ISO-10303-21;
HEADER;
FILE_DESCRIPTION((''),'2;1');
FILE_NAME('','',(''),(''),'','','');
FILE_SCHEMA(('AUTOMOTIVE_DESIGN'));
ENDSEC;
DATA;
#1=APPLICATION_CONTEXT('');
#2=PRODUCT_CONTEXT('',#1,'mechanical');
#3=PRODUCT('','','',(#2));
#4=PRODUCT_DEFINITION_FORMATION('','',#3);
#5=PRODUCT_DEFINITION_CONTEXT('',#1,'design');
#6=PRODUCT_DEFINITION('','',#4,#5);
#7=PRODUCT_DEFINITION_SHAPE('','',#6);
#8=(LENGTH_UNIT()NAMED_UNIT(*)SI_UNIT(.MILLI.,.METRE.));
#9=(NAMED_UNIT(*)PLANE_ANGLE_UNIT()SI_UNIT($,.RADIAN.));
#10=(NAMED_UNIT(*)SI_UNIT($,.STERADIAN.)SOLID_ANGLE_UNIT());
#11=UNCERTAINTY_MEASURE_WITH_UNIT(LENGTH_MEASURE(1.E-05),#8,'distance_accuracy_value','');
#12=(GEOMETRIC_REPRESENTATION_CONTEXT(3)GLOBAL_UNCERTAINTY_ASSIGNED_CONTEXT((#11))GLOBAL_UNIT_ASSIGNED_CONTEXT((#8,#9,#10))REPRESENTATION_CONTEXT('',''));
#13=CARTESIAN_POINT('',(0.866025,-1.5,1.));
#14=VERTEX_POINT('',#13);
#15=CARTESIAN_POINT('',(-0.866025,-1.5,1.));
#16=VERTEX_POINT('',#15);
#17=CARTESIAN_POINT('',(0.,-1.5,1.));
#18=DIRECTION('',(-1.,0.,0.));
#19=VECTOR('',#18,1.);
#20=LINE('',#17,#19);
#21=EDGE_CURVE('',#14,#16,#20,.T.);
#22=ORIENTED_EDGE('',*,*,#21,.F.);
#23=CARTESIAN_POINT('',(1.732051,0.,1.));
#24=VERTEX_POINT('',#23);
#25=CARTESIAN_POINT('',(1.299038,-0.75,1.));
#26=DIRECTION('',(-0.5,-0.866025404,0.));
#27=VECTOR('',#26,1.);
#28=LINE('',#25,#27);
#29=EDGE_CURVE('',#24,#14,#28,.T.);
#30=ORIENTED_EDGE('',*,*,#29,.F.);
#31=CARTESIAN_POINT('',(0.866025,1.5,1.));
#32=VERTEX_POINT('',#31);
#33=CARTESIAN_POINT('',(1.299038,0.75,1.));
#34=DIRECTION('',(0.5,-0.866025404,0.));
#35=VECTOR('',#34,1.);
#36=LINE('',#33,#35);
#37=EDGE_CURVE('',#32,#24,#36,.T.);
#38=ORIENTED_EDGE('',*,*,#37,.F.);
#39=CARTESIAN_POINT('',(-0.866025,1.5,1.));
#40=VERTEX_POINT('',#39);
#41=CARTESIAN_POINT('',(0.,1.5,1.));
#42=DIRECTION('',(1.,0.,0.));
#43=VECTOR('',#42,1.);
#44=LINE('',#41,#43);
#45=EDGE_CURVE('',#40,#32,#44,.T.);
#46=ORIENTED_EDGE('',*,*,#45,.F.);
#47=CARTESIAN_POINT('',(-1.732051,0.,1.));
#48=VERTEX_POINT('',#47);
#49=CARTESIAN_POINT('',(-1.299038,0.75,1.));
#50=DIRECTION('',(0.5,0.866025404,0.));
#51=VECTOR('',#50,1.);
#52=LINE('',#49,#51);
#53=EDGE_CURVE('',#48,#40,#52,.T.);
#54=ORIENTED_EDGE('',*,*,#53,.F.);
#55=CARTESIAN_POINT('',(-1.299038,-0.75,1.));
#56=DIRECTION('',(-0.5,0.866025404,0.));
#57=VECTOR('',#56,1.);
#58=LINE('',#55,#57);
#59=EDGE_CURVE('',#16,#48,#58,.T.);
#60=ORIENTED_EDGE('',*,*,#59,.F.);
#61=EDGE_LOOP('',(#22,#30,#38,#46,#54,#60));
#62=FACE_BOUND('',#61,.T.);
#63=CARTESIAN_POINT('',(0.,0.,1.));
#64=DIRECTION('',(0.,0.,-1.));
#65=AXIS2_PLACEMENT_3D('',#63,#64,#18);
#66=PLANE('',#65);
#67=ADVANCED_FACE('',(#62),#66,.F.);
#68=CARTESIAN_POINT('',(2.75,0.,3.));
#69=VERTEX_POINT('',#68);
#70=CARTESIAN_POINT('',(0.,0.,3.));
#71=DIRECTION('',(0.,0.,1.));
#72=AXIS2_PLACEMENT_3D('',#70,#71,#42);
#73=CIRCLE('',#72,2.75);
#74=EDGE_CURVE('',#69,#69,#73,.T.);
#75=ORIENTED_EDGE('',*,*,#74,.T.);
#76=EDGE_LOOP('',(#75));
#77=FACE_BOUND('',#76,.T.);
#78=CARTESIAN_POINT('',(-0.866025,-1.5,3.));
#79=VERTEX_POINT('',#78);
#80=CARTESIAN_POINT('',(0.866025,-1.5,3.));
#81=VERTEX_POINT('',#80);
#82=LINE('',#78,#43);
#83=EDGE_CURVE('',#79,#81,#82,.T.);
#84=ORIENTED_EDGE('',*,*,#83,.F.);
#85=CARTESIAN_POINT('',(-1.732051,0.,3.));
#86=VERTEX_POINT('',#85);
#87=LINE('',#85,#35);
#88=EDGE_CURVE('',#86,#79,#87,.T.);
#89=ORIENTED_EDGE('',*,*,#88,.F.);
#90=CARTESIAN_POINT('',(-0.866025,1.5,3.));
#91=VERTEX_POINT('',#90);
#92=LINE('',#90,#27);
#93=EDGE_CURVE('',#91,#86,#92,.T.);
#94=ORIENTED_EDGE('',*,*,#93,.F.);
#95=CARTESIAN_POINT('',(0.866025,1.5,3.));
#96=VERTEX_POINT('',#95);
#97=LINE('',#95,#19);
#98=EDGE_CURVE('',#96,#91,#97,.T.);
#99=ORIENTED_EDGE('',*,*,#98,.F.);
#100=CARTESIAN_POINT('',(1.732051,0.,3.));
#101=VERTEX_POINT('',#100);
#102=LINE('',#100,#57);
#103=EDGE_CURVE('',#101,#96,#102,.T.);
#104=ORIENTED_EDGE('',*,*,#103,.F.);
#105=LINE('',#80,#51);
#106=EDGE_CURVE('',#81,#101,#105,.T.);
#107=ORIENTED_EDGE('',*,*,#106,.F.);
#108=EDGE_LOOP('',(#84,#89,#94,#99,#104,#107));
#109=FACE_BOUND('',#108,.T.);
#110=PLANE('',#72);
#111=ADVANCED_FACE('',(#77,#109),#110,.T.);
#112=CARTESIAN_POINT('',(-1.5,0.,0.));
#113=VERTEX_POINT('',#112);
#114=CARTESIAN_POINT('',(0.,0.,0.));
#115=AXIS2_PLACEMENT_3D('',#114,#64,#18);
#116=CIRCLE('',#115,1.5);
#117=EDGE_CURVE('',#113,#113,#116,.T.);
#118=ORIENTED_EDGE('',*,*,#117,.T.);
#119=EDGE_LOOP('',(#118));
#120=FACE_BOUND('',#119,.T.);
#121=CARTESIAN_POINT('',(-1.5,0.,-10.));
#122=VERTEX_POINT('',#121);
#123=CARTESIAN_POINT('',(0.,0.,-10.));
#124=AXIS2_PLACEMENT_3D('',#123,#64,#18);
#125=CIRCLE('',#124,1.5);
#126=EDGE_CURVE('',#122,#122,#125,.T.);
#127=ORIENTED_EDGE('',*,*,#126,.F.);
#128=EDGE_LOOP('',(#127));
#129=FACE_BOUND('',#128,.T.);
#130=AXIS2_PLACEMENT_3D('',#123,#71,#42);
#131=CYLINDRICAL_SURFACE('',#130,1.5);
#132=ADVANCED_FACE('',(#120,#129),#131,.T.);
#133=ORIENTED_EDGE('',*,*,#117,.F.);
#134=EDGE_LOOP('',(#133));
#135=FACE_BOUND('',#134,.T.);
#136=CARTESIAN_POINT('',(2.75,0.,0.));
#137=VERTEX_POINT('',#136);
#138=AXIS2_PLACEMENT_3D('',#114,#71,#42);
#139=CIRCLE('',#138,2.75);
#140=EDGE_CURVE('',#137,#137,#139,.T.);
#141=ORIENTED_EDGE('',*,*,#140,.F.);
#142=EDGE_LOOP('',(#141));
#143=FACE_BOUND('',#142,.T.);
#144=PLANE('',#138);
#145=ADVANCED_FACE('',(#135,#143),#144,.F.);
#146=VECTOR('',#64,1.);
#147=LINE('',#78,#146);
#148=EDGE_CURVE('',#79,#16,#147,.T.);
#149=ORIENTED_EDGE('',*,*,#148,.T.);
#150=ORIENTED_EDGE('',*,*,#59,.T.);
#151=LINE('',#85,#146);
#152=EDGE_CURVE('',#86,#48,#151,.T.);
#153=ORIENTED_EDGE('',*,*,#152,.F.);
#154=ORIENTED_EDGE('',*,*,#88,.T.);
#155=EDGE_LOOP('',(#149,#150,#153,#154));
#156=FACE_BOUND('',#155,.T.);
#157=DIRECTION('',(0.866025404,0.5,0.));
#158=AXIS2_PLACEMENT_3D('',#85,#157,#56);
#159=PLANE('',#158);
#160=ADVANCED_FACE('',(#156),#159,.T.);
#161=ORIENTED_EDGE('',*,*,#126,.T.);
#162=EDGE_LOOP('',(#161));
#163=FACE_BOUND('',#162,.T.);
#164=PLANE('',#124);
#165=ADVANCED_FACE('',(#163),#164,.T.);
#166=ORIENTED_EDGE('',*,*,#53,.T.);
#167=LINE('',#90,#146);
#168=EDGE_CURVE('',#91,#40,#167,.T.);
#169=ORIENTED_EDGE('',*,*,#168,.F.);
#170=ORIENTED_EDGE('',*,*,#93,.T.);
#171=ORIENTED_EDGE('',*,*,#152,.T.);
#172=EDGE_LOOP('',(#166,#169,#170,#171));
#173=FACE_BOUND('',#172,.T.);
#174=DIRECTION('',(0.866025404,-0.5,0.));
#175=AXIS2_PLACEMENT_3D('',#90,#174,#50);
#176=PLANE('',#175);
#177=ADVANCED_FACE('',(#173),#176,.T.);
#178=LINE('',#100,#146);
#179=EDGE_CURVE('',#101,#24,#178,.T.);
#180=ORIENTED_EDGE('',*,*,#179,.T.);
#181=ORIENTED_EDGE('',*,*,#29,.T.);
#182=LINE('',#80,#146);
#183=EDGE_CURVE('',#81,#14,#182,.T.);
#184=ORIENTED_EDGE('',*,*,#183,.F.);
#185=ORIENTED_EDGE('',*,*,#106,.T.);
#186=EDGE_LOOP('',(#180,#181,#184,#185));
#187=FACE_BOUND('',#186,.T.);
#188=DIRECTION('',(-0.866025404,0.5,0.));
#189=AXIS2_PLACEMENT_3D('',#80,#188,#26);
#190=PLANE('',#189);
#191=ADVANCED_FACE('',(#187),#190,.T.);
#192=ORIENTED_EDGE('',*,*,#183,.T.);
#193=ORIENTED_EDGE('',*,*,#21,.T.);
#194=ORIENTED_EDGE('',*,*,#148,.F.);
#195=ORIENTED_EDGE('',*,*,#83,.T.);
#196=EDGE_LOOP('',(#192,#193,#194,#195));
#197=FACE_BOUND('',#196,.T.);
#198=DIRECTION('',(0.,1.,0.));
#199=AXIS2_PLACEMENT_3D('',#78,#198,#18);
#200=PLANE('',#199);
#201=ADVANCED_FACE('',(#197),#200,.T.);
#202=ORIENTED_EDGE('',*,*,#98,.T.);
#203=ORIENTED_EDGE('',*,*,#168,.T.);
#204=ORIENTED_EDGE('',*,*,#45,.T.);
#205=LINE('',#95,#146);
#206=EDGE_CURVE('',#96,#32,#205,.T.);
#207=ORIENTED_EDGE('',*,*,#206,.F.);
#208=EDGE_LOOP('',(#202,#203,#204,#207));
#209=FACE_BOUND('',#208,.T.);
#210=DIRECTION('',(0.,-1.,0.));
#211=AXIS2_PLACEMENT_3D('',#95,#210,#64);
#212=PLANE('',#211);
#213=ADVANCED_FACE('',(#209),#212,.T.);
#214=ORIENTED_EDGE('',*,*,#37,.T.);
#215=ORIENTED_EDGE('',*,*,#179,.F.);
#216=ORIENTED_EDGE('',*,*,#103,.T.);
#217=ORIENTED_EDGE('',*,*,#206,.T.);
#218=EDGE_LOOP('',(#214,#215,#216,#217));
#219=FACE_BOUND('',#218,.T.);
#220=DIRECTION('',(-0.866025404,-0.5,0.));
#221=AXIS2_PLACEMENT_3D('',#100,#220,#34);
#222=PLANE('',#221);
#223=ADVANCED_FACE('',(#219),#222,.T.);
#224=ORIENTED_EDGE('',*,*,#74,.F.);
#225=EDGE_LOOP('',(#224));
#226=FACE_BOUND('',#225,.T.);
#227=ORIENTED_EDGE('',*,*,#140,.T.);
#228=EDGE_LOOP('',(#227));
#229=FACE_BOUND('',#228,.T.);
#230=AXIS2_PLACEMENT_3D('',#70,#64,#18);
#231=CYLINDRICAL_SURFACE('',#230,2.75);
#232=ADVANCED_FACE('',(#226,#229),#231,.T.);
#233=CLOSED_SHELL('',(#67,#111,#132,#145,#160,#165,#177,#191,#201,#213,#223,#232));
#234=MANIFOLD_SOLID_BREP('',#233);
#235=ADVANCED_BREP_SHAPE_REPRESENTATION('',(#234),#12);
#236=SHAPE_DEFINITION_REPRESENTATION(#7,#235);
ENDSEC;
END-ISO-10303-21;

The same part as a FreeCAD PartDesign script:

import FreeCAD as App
import Part
import Sketcher
from FreeCAD import Vector
Q = App.Units.Quantity

doc = App.newDocument("Part")
params = doc.addObject("Spreadsheet::Sheet", "Params")
for row, (alias, value) in enumerate([
    ("sketch1_diameter", "5.5 mm"),
    ("pad1_length", "3 mm"),
    ("sketch2_diameter", "3 mm"),
    ("pad2_length", "10 mm"),
    ("pad3_length", "1 mm"),
], start=1):
    params.set(f"A{row}", alias)
    params.set(f"B{row}", "=" + value)
    params.setAlias(f"B{row}", alias)

body = doc.addObject("PartDesign::Body", "Body")

# Sketch on XY plane
sketch1 = body.newObject("Sketcher::SketchObject", "Sketch")
sketch1.AttachmentSupport = (doc.getObject("XY_Plane"), [""])
sketch1.MapMode = "FlatFace"
sketch1.addGeometry(Part.Circle(Vector(0, 0, 0), Vector(0, 0, 1), 2.8), False)
sketch1.addGeometry(Part.LineSegment(Vector(0.9, 1.5, 0), Vector(1.7, 0, 0)), False)
sketch1.addGeometry(Part.LineSegment(Vector(1.7, 0, 0), Vector(0.9, -1.5, 0)), False)
sketch1.addGeometry(Part.LineSegment(Vector(0.9, -1.5, 0), Vector(-0.9, -1.5, 0)), False)
sketch1.addGeometry(Part.LineSegment(Vector(-0.9, -1.5, 0), Vector(-1.7, 0, 0)), False)
sketch1.addGeometry(Part.LineSegment(Vector(-1.7, 0, 0), Vector(-0.9, 1.5, 0)), False)
sketch1.addGeometry(Part.LineSegment(Vector(-0.9, 1.5, 0), Vector(0.9, 1.5, 0)), False)
sketch1.addConstraint(Sketcher.Constraint("Coincident", 1, 2, 2, 1))
sketch1.addConstraint(Sketcher.Constraint("Coincident", 2, 2, 3, 1))
sketch1.addConstraint(Sketcher.Constraint("Coincident", 3, 2, 4, 1))
sketch1.addConstraint(Sketcher.Constraint("Coincident", 4, 2, 5, 1))
sketch1.addConstraint(Sketcher.Constraint("Coincident", 5, 2, 6, 1))
sketch1.addConstraint(Sketcher.Constraint("Coincident", 6, 2, 1, 1))
sketch1.addConstraint(Sketcher.Constraint("Horizontal", 3))
sketch1.addConstraint(Sketcher.Constraint("Horizontal", 6))
sketch1.addConstraint(Sketcher.Constraint("Coincident", 0, 3, -1, 1))
sketch1.addConstraint(Sketcher.Constraint("Symmetric", 1, 2, 4, 2, -1, 1))
sketch1.addConstraint(Sketcher.Constraint("Symmetric", 2, 2, 5, 2, -1, 1))
sketch1.addConstraint(Sketcher.Constraint("PointOnObject", 1, 2, -1))
sketch1.addConstraint(Sketcher.Constraint("Parallel", 1, 4))
sketch1.addConstraint(Sketcher.Constraint("Vertical", 3, 2, 5, 2))
sketch1.addConstraint(Sketcher.Constraint("Diameter", 0, Q("5.5 mm")))
sketch1.addConstraint(Sketcher.Constraint("Angle", 1, Q("-60 deg")))
sketch1.addConstraint(Sketcher.Constraint("DistanceY", 3, 2, 5, 2, Q("3 mm")))
sketch1.addConstraint(Sketcher.Constraint("DistanceX", 3, 2, 3, 1, Q("1.732051 mm")))
sketch1.setExpression("Constraints[14]", "Params.sketch1_diameter")
pad1 = body.newObject("PartDesign::Pad", "Pad")
pad1.Profile = sketch1
pad1.setExpression("Length", "Params.pad1_length")
body2 = doc.addObject("PartDesign::Body", "Body001")

# Sketch on XY plane
sketch2 = body2.newObject("Sketcher::SketchObject", "Sketch001")
sketch2.AttachmentSupport = (doc.getObject("XY_Plane001"), [""])
sketch2.MapMode = "FlatFace"
sketch2.addGeometry(Part.Circle(Vector(0, 0, 0), Vector(0, 0, 1), 1.5), False)
sketch2.addConstraint(Sketcher.Constraint("Coincident", 0, 3, -1, 1))
sketch2.addConstraint(Sketcher.Constraint("Diameter", 0, Q("3 mm")))
sketch2.setExpression("Constraints[1]", "Params.sketch2_diameter")
pad2 = body2.newObject("PartDesign::Pad", "Pad001")
pad2.Profile = sketch2
pad2.setExpression("Length", "Params.pad2_length")
pad2.Reversed = True
body.AllowCompound = True
doc.recompute()

boolean = body.newObject("PartDesign::Boolean", "Boolean")
boolean.Type = "Fuse"
boolean.addObjects([body2])

# Sketch on XY plane
sketch3 = body.newObject("Sketcher::SketchObject", "Sketch002")
sketch3.AttachmentSupport = (doc.getObject("XY_Plane"), [""])
sketch3.MapMode = "FlatFace"
sketch3.addGeometry(Part.LineSegment(Vector(-0.9, -1.5, 0), Vector(0.9, -1.5, 0)), False)
sketch3.addGeometry(Part.LineSegment(Vector(0.9, -1.5, 0), Vector(1.7, 0, 0)), False)
sketch3.addGeometry(Part.LineSegment(Vector(1.7, 0, 0), Vector(0.9, 1.5, 0)), False)
sketch3.addGeometry(Part.LineSegment(Vector(0.9, 1.5, 0), Vector(-0.9, 1.5, 0)), False)
sketch3.addGeometry(Part.LineSegment(Vector(-0.9, 1.5, 0), Vector(-1.7, 0, 0)), False)
sketch3.addGeometry(Part.LineSegment(Vector(-1.7, 0, 0), Vector(-0.9, -1.5, 0)), False)
sketch3.addConstraint(Sketcher.Constraint("Coincident", 0, 2, 1, 1))
sketch3.addConstraint(Sketcher.Constraint("Coincident", 1, 2, 2, 1))
sketch3.addConstraint(Sketcher.Constraint("Coincident", 2, 2, 3, 1))
sketch3.addConstraint(Sketcher.Constraint("Coincident", 3, 2, 4, 1))
sketch3.addConstraint(Sketcher.Constraint("Coincident", 4, 2, 5, 1))
sketch3.addConstraint(Sketcher.Constraint("Coincident", 5, 2, 0, 1))
sketch3.addConstraint(Sketcher.Constraint("Horizontal", 0))
sketch3.addConstraint(Sketcher.Constraint("Horizontal", 3))
sketch3.addConstraint(Sketcher.Constraint("Symmetric", 0, 2, 3, 2, -1, 1))
sketch3.addConstraint(Sketcher.Constraint("Symmetric", 1, 2, 4, 2, -1, 1))
sketch3.addConstraint(Sketcher.Constraint("PointOnObject", 1, 2, -1))
sketch3.addConstraint(Sketcher.Constraint("Parallel", 2, 5))
sketch3.addConstraint(Sketcher.Constraint("Vertical", 0, 2, 2, 2))
sketch3.addConstraint(Sketcher.Constraint("Angle", 1, Q("60 deg")))
sketch3.addConstraint(Sketcher.Constraint("DistanceY", 0, 2, 2, 2, Q("3 mm")))
sketch3.addConstraint(Sketcher.Constraint("DistanceX", 0, 1, 0, 2, Q("1.732051 mm")))
pad3 = body.newObject("PartDesign::Pad", "Pad002")
pad3.Profile = sketch3
pad3.setExpression("Length", "Params.pad3_length")

doc.recompute()
